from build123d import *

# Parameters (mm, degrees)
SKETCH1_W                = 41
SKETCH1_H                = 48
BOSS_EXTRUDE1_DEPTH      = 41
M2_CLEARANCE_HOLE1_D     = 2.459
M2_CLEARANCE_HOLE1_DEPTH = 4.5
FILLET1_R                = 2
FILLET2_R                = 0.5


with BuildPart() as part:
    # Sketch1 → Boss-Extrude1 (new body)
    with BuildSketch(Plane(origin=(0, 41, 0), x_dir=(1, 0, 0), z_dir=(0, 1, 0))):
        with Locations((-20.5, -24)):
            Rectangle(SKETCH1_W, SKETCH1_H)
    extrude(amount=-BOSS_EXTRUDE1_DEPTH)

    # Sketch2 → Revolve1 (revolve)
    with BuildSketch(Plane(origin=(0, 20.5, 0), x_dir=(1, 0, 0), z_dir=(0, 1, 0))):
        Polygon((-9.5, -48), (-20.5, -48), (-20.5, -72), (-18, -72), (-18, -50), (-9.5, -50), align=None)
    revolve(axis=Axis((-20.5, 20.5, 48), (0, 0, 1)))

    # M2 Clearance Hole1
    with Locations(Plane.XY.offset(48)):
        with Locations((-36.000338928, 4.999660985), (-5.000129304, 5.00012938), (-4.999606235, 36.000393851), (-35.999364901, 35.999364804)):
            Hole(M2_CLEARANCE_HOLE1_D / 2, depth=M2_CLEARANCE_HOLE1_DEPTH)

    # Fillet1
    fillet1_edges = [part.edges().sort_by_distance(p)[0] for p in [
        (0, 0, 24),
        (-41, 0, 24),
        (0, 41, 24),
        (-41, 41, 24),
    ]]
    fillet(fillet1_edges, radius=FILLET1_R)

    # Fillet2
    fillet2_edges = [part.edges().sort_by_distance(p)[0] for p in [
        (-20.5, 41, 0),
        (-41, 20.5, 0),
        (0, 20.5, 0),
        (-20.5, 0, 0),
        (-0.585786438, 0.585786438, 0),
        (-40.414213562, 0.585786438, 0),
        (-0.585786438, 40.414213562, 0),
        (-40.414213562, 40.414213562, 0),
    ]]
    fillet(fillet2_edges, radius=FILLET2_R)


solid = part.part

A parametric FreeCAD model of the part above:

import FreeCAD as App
import Part
import Sketcher


def edges_at(feature, points):
    """Names of the edges that pass closest to the given points."""
    edges = feature.Shape.Edges
    near = lambda p: min(range(len(edges)), key=lambda i: edges[i].distToShape(Part.Vertex(*p))[0])
    return sorted({f"Edge{near(p) + 1}" for p in points})


def add_polygon(sketch, points):
    """Adds a closed chain of lines whose ends are joined by coincident constraints."""
    first, n = sketch.GeometryCount, len(points)
    for a, b in zip(points, points[1:] + points[:1]):
        sketch.addGeometry(Part.LineSegment(App.Vector(*a, 0), App.Vector(*b, 0)), False)
    for i in range(n):
        sketch.addConstraint(Sketcher.Constraint("Coincident", first + i, 2, first + (i + 1) % n, 1))

doc = App.newDocument("Part")
body = doc.addObject("PartDesign::Body", "Body")

sketch1 = body.newObject("Sketcher::SketchObject", "Sketch")
sketch1.AttachmentSupport = (doc.getObject("XZ_Plane"), [""])
sketch1.MapMode = "FlatFace"
sketch1.AttachmentOffset = App.Placement(App.Vector(0, 0, -41), App.Rotation())
add_polygon(sketch1, [(-41, 0), (-41, 48), (0, 48), (0, 0)])
sketch1.addConstraint(Sketcher.Constraint("Vertical", 0))
sketch1.addConstraint(Sketcher.Constraint("Horizontal", 1))
sketch1.addConstraint(Sketcher.Constraint("Vertical", 2))
sketch1.addConstraint(Sketcher.Constraint("Horizontal", 3))
sketch1.addConstraint(Sketcher.Constraint("Coincident", 2, 2, -1, 1))
sketch1.addConstraint(Sketcher.Constraint("DistanceX", 1, 1, 1, 2, 41.0))
sketch1.addConstraint(Sketcher.Constraint("DistanceY", 0, 1, 0, 2, 48.0))
pad1 = body.newObject("PartDesign::Pad", "Pad")
pad1.Profile = sketch1
pad1.Length = 41

sketch2 = body.newObject("Sketcher::SketchObject", "Sketch001")
sketch2.AttachmentSupport = (doc.getObject("XZ_Plane"), [""])
sketch2.MapMode = "FlatFace"
sketch2.AttachmentOffset = App.Placement(App.Vector(0, 0, -20.5), App.Rotation())
add_polygon(sketch2, [(-9.5, 48), (-20.5, 48), (-20.5, 72), (-18, 72), (-18, 50), (-9.5, 50)])
sketch2.addGeometry(Part.LineSegment(App.Vector(-20.5, 48, 0), App.Vector(-20.5, 72, 0)), True)
sketch2.addConstraint(Sketcher.Constraint("Horizontal", 0))
sketch2.addConstraint(Sketcher.Constraint("Vertical", 1))
sketch2.addConstraint(Sketcher.Constraint("Horizontal", 2))
sketch2.addConstraint(Sketcher.Constraint("Vertical", 3))
sketch2.addConstraint(Sketcher.Constraint("Horizontal", 4))
sketch2.addConstraint(Sketcher.Constraint("Vertical", 5))
sketch2.addConstraint(Sketcher.Constraint("Vertical", 6))
sketch2.addConstraint(Sketcher.Constraint("Coincident", 6, 1, 0, 2))
sketch2.addConstraint(Sketcher.Constraint("Horizontal", 2, 2, 6, 2))
sketch2.addConstraint(Sketcher.Constraint("DistanceX", 0, 2, 0, 1, 11.0))
sketch2.addConstraint(Sketcher.Constraint("DistanceY", 1, 1, 1, 2, 24.0))
sketch2.addConstraint(Sketcher.Constraint("DistanceY", 3, 2, 3, 1, 22.0))
sketch2.addConstraint(Sketcher.Constraint("DistanceX", 2, 1, 2, 2, 2.5))
sketch2.addConstraint(Sketcher.Constraint("DistanceY", -1, 1, 0, 2, 48.0))
sketch2.addConstraint(Sketcher.Constraint("DistanceX", 2, 2, -1, 1, 18.0))
revolution = body.newObject("PartDesign::Revolution", "Revolution")
revolution.Profile = sketch2
revolution.ReferenceAxis = (sketch2, ["Axis0"])
revolution.Angle = 360

sketch3 = body.newObject("Sketcher::SketchObject", "Sketch002")
sketch3.AttachmentSupport = (doc.getObject("XY_Plane"), [""])
sketch3.MapMode = "FlatFace"
sketch3.AttachmentOffset = App.Placement(App.Vector(0, 0, 48), App.Rotation())
sketch3.addGeometry(Part.Circle(App.Vector(-36, 5, 0), App.Vector(0, 0, 1), 1.2), False)
sketch3.addGeometry(Part.Circle(App.Vector(-5, 5, 0), App.Vector(0, 0, 1), 1.2), False)
sketch3.addGeometry(Part.Circle(App.Vector(-5, 36, 0), App.Vector(0, 0, 1), 1.2), False)
sketch3.addGeometry(Part.Circle(App.Vector(-36, 36, 0), App.Vector(0, 0, 1), 1.2), False)
sketch3.addConstraint(Sketcher.Constraint("Equal", 0, 1))
sketch3.addConstraint(Sketcher.Constraint("Equal", 1, 2))
sketch3.addConstraint(Sketcher.Constraint("Equal", 2, 3))
sketch3.addConstraint(Sketcher.Constraint("Diameter", 0, 2.459))
sketch3.addConstraint(Sketcher.Constraint("DistanceX", 0, 3, -1, 1, 36.000339))
sketch3.addConstraint(Sketcher.Constraint("DistanceY", -1, 1, 0, 3, 4.999661))
sketch3.addConstraint(Sketcher.Constraint("DistanceX", 1, 3, -1, 1, 5.000129))
sketch3.addConstraint(Sketcher.Constraint("DistanceY", -1, 1, 1, 3, 5.000129))
sketch3.addConstraint(Sketcher.Constraint("DistanceX", 3, 3, 2, 3, 30.999759))
sketch3.addConstraint(Sketcher.Constraint("DistanceY", 3, 3, 2, 3, 0.001029))
sketch3.addConstraint(Sketcher.Constraint("DistanceX", 2, 3, -1, 1, 4.999606))
sketch3.addConstraint(Sketcher.Constraint("DistanceY", -1, 1, 2, 3, 36.000394))
doc.recompute()
hole = body.newObject("PartDesign::Hole", "Hole")
hole.Profile = sketch3
hole.ThreadType = "None"
hole.Diameter = 2.459
hole.DepthType = "Dimension"
hole.Depth = 4.5
hole.DrillPoint = "Flat"
doc.recompute()

fillet = body.newObject("PartDesign::Fillet", "Fillet")
fillet.Base = (hole, edges_at(hole, [
    (0, 0, 24),
    (-41, 0, 24),
    (0, 41, 24),
    (-41, 41, 24),
]))
fillet.Radius = 2
doc.recompute()

fillet2 = body.newObject("PartDesign::Fillet", "Fillet001")
fillet2.Base = (fillet, edges_at(fillet, [
    (-20.5, 41, 0),
    (-41, 20.5, 0),
    (0, 20.5, 0),
    (-20.5, 0, 0),
    (-0.586, 0.586, 0),
    (-40.414, 0.586, 0),
    (-0.586, 40.414, 0),
    (-40.414, 40.414, 0),
]))
fillet2.Radius = 0.5

doc.recompute()
